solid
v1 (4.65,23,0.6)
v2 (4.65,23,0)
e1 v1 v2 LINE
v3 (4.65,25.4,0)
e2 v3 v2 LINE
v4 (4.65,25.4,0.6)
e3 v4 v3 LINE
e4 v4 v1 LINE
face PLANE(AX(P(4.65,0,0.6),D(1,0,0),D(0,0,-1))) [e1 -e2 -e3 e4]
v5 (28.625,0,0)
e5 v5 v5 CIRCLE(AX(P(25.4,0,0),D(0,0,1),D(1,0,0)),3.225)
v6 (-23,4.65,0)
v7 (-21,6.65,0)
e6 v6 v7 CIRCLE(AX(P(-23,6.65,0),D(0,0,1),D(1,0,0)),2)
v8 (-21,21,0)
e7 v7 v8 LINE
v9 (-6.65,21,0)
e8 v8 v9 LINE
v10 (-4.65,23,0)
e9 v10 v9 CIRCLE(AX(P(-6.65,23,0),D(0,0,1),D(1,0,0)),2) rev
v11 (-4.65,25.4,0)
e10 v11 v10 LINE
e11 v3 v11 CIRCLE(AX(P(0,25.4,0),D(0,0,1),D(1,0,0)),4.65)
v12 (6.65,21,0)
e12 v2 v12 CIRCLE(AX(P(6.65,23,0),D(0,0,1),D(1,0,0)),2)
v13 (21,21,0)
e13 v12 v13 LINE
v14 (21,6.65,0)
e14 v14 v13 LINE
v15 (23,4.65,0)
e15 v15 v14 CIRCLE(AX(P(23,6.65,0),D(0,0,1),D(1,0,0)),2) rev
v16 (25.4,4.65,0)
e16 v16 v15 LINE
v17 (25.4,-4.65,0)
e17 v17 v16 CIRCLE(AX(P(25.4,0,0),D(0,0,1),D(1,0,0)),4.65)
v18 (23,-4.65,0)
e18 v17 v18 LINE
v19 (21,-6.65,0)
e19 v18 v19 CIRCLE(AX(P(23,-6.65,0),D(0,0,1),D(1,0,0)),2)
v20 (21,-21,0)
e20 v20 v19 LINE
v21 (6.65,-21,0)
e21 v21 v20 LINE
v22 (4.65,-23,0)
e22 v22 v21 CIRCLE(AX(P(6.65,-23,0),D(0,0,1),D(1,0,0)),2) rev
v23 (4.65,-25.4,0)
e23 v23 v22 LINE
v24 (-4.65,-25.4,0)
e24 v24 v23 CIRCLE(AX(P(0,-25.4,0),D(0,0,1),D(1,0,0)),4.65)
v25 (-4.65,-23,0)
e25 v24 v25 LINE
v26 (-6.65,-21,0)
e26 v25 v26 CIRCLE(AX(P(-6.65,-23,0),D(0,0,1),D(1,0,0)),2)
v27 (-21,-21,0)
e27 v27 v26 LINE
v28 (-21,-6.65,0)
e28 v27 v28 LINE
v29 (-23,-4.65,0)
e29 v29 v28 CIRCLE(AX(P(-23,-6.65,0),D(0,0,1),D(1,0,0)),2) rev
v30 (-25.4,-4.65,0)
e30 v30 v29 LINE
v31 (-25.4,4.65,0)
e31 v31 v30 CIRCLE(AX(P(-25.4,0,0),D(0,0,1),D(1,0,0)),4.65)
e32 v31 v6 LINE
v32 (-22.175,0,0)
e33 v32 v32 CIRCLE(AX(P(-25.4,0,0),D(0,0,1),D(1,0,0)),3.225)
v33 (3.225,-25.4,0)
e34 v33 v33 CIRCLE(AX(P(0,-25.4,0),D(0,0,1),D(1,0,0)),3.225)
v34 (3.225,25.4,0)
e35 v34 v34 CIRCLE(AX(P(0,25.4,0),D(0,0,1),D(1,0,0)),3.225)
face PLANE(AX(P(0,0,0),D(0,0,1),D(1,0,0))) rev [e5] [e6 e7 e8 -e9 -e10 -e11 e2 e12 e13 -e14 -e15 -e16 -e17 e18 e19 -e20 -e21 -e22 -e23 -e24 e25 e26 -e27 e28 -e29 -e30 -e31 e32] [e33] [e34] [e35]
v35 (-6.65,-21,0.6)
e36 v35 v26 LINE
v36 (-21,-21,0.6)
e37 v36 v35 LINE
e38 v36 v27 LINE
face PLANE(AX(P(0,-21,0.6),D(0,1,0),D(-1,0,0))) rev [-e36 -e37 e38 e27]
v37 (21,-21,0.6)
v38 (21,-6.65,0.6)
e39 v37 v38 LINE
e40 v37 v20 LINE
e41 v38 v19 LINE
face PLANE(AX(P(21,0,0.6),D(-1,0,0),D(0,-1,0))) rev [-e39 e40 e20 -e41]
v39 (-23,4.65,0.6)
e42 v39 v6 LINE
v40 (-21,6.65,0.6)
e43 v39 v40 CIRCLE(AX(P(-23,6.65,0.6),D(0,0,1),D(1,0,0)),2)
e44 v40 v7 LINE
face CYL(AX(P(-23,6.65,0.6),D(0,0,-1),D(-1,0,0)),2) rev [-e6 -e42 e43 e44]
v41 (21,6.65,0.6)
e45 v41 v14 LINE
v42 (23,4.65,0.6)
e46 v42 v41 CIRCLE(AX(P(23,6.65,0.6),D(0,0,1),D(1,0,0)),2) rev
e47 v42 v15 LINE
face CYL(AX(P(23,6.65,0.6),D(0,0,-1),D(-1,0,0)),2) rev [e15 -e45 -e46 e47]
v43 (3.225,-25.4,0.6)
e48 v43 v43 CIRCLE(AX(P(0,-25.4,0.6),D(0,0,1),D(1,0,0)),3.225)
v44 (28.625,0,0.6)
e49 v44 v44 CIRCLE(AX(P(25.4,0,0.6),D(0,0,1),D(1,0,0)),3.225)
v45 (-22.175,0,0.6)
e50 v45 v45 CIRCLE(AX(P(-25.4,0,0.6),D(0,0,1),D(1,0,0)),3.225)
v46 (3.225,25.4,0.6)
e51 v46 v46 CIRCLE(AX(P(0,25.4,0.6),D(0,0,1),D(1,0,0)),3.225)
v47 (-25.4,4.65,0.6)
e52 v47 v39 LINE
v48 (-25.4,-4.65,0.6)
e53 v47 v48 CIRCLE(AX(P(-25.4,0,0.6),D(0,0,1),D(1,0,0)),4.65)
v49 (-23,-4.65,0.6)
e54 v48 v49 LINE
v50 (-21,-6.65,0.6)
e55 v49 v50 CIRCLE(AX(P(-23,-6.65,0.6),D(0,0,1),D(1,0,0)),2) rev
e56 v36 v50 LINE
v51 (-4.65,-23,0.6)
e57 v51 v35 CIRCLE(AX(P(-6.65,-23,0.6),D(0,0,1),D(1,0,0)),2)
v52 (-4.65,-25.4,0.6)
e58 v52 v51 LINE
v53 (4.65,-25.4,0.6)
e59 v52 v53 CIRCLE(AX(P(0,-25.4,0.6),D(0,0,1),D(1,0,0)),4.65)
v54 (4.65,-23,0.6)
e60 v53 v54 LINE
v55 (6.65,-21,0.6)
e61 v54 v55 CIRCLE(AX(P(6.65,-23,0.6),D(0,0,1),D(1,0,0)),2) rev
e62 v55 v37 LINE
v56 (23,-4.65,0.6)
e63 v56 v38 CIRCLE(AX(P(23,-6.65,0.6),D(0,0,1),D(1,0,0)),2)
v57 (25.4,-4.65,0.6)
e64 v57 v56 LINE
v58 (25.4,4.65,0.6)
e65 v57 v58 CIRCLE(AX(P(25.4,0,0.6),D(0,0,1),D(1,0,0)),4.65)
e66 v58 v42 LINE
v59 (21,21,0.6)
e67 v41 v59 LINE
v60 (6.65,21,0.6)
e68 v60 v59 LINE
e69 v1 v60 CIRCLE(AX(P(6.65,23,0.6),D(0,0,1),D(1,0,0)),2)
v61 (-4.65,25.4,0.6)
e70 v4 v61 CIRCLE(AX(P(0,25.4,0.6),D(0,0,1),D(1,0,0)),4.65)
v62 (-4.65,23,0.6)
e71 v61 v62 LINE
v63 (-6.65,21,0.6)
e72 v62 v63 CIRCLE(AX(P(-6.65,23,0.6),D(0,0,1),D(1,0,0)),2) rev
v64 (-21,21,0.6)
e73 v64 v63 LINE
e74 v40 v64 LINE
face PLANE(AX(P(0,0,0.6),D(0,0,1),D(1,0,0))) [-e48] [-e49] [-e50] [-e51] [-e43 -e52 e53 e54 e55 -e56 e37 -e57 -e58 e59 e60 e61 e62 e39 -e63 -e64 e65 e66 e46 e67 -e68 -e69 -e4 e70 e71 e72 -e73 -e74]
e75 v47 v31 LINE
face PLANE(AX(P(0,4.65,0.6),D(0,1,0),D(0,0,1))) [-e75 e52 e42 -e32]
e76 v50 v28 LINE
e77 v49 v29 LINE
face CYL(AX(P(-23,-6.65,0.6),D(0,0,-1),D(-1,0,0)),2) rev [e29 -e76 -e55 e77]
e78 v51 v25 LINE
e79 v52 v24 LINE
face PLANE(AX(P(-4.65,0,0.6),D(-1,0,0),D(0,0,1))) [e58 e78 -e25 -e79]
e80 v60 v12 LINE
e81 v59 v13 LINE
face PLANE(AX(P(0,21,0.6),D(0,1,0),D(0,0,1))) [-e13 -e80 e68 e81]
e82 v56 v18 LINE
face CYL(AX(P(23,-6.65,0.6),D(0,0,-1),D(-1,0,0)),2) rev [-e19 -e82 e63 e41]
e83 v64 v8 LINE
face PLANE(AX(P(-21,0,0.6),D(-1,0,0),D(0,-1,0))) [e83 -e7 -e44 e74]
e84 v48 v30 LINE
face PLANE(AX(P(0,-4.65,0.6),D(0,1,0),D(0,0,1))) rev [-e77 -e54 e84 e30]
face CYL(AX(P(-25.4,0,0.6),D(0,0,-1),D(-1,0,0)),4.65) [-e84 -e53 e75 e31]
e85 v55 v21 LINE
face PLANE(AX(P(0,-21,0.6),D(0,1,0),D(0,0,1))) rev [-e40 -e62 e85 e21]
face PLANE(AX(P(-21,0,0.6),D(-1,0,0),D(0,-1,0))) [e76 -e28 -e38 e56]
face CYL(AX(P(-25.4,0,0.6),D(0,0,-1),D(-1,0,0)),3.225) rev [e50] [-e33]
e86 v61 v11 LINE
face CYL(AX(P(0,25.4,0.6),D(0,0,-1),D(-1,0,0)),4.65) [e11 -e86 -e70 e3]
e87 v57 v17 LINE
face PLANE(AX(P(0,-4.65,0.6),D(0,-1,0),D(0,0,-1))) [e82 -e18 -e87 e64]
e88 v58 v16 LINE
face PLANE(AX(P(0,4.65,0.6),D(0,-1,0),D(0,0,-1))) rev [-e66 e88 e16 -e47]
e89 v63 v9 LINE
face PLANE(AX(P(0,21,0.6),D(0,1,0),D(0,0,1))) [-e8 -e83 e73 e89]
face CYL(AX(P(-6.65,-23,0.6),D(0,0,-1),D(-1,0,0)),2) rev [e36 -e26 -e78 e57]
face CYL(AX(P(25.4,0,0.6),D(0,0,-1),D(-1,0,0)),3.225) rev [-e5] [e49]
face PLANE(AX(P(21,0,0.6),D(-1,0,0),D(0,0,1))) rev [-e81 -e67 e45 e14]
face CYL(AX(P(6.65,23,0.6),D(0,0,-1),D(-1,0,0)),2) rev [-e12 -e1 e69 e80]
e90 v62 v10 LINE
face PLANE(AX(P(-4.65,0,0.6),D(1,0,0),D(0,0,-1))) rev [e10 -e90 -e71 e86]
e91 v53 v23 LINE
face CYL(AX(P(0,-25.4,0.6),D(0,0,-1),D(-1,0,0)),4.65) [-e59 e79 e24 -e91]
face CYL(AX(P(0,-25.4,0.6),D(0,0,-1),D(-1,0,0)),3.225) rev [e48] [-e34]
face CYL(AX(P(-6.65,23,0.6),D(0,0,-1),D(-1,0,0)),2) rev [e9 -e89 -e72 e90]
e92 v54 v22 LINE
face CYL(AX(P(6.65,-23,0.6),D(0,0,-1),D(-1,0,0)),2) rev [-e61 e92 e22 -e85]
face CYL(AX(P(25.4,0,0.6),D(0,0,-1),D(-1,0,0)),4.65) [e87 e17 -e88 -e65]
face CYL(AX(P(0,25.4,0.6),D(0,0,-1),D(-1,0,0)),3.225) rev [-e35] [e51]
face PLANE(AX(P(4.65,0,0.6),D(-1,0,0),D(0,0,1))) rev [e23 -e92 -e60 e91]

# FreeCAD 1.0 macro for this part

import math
import FreeCAD as App
import Part
import Sketcher

doc = App.newDocument("Part")
body = doc.addObject("PartDesign::Body", "Body")

sketch1 = body.newObject("Sketcher::SketchObject", "Sketch")
sketch1.AttachmentSupport = (doc.getObject("XY_Plane"), [""])
sketch1.MapMode = "FlatFace"
sketch1.addGeometry([
    Part.ArcOfCircle(Part.Circle(App.Vector(0, 25.4, 0), App.Vector(0, 0, 1), 4.65), math.radians(0), math.radians(180)),
    Part.LineSegment(App.Vector(-4.65, 25.4, 0), App.Vector(-4.65, 23, 0)),
    Part.ArcOfCircle(Part.Circle(App.Vector(-6.65, 23, 0), App.Vector(0, 0, 1), 2), math.radians(-90), math.radians(0)),
    Part.LineSegment(App.Vector(-6.65, 21, 0), App.Vector(-21, 21, 0)),
    Part.LineSegment(App.Vector(-21, 21, 0), App.Vector(-21, 6.65, 0)),
    Part.ArcOfCircle(Part.Circle(App.Vector(-23, 6.65, 0), App.Vector(0, 0, 1), 2), math.radians(-90), math.radians(0)),
    Part.LineSegment(App.Vector(-23, 4.65, 0), App.Vector(-25.4, 4.65, 0)),
    Part.ArcOfCircle(Part.Circle(App.Vector(-25.4, 0, 0), App.Vector(0, 0, 1), 4.65), math.radians(90), math.radians(270)),
    Part.LineSegment(App.Vector(-25.4, -4.65, 0), App.Vector(-23, -4.65, 0)),
    Part.ArcOfCircle(Part.Circle(App.Vector(-23, -6.65, 0), App.Vector(0, 0, 1), 2), math.radians(0), math.radians(90)),
    Part.LineSegment(App.Vector(-21, -6.65, 0), App.Vector(-21, -21, 0)),
    Part.LineSegment(App.Vector(-21, -21, 0), App.Vector(-6.65, -21, 0)),
    Part.ArcOfCircle(Part.Circle(App.Vector(-6.65, -23, 0), App.Vector(0, 0, 1), 2), math.radians(0), math.radians(90)),
    Part.LineSegment(App.Vector(-4.65, -23, 0), App.Vector(-4.65, -25.4, 0)),
    Part.ArcOfCircle(Part.Circle(App.Vector(0, -25.4, 0), App.Vector(0, 0, 1), 4.65), math.radians(180), math.radians(360)),
    Part.LineSegment(App.Vector(4.65, -25.4, 0), App.Vector(4.65, -23, 0)),
    Part.ArcOfCircle(Part.Circle(App.Vector(6.65, -23, 0), App.Vector(0, 0, 1), 2), math.radians(90), math.radians(180)),
    Part.LineSegment(App.Vector(6.65, -21, 0), App.Vector(21, -21, 0)),
    Part.LineSegment(App.Vector(21, -21, 0), App.Vector(21, -6.65, 0)),
    Part.ArcOfCircle(Part.Circle(App.Vector(23, -6.65, 0), App.Vector(0, 0, 1), 2), math.radians(90), math.radians(180)),
    Part.LineSegment(App.Vector(23, -4.65, 0), App.Vector(25.4, -4.65, 0)),
    Part.ArcOfCircle(Part.Circle(App.Vector(25.4, 0, 0), App.Vector(0, 0, 1), 4.65), math.radians(-90), math.radians(90)),
    Part.LineSegment(App.Vector(25.4, 4.65, 0), App.Vector(23, 4.65, 0)),
    Part.ArcOfCircle(Part.Circle(App.Vector(23, 6.65, 0), App.Vector(0, 0, 1), 2), math.radians(-180), math.radians(-90)),
    Part.LineSegment(App.Vector(21, 6.65, 0), App.Vector(21, 21, 0)),
    Part.LineSegment(App.Vector(21, 21, 0), App.Vector(6.65, 21, 0)),
    Part.ArcOfCircle(Part.Circle(App.Vector(6.65, 23, 0), App.Vector(0, 0, 1), 2), math.radians(-180), math.radians(-90)),
    Part.LineSegment(App.Vector(4.65, 23, 0), App.Vector(4.65, 25.4, 0)),
    Part.Circle(App.Vector(0, -25.4, 0), App.Vector(0, 0, 1), 3.225),
    Part.Circle(App.Vector(-25.4, 0, 0), App.Vector(0, 0, 1), 3.225),
    Part.Circle(App.Vector(25.4, 0, 0), App.Vector(0, 0, 1), 3.225),
    Part.Circle(App.Vector(0, 25.4, 0), App.Vector(0, 0, 1), 3.225),
], False)
sketch1.addConstraint([
    Sketcher.Constraint("Tangent", 0, 2, 1, 1),
    Sketcher.Constraint("Tangent", 1, 2, 2, 2),
    Sketcher.Constraint("Tangent", 2, 1, 3, 1),
    Sketcher.Constraint("Coincident", 3, 2, 4, 1),
    Sketcher.Constraint("Tangent", 4, 2, 5, 2),
    Sketcher.Constraint("Tangent", 5, 1, 6, 1),
    Sketcher.Constraint("Tangent", 6, 2, 7, 1),
    Sketcher.Constraint("Tangent", 7, 2, 8, 1),
    Sketcher.Constraint("Tangent", 8, 2, 9, 2),
    Sketcher.Constraint("Tangent", 9, 1, 10, 1),
    Sketcher.Constraint("Coincident", 10, 2, 11, 1),
    Sketcher.Constraint("Tangent", 11, 2, 12, 2),
    Sketcher.Constraint("Tangent", 12, 1, 13, 1),
    Sketcher.Constraint("Tangent", 13, 2, 14, 1),
    Sketcher.Constraint("Tangent", 14, 2, 15, 1),
    Sketcher.Constraint("Tangent", 15, 2, 16, 2),
    Sketcher.Constraint("Tangent", 16, 1, 17, 1),
    Sketcher.Constraint("Coincident", 17, 2, 18, 1),
    Sketcher.Constraint("Tangent", 18, 2, 19, 2),
    Sketcher.Constraint("Tangent", 19, 1, 20, 1),
    Sketcher.Constraint("Tangent", 20, 2, 21, 1),
    Sketcher.Constraint("Tangent", 21, 2, 22, 1),
    Sketcher.Constraint("Tangent", 22, 2, 23, 2),
    Sketcher.Constraint("Tangent", 23, 1, 24, 1),
    Sketcher.Constraint("Coincident", 24, 2, 25, 1),
    Sketcher.Constraint("Tangent", 25, 2, 26, 2),
    Sketcher.Constraint("Tangent", 26, 1, 27, 1),
    Sketcher.Constraint("Tangent", 27, 2, 0, 1),
    Sketcher.Constraint("Vertical", 1),
    Sketcher.Constraint("Horizontal", 3),
    Sketcher.Constraint("Vertical", 4),
    Sketcher.Constraint("Horizontal", 6),
    Sketcher.Constraint("Horizontal", 8),
    Sketcher.Constraint("Vertical", 10),
    Sketcher.Constraint("Horizontal", 11),
    Sketcher.Constraint("Vertical", 13),
    Sketcher.Constraint("Vertical", 15),
    Sketcher.Constraint("Horizontal", 17),
    Sketcher.Constraint("Vertical", 18),
    Sketcher.Constraint("Horizontal", 20),
    Sketcher.Constraint("Horizontal", 22),
    Sketcher.Constraint("Vertical", 24),
    Sketcher.Constraint("Horizontal", 25),
    Sketcher.Constraint("Vertical", 27),
    Sketcher.Constraint("Coincident", 28, 3, 14, 3),
    Sketcher.Constraint("Coincident", 29, 3, 7, 3),
    Sketcher.Constraint("Coincident", 30, 3, 21, 3),
    Sketcher.Constraint("Coincident", 31, 3, 0, 3),
    Sketcher.Constraint("Equal", 2, 5),
    Sketcher.Constraint("Equal", 0, 7),
    Sketcher.Constraint("Equal", 5, 9),
    Sketcher.Constraint("Equal", 9, 12),
    Sketcher.Constraint("Equal", 7, 14),
    Sketcher.Constraint("Equal", 12, 16),
    Sketcher.Constraint("Equal", 16, 19),
    Sketcher.Constraint("Equal", 14, 21),
    Sketcher.Constraint("Equal", 19, 23),
    Sketcher.Constraint("Equal", 23, 26),
    Sketcher.Constraint("Equal", 28, 29),
    Sketcher.Constraint("Equal", 29, 30),
    Sketcher.Constraint("Equal", 30, 31),
    Sketcher.Constraint("Symmetric", 0, 3, 14, 3, -1, 1),
    Sketcher.Constraint("Symmetric", 5, 3, 19, 3, -1, 1),
    Sketcher.Constraint("Symmetric", 10, 2, 24, 2, -1, 1),
    Sketcher.Constraint("Symmetric", 12, 3, 16, 3, -2),
    Sketcher.Constraint("Symmetric", 9, 3, 19, 3, -2),
    Sketcher.Constraint("Horizontal", 2, 3, 26, 3),
    Sketcher.Constraint("Equal", 8, 20),
    Sketcher.Constraint("Equal", 22, 1),
    Sketcher.Constraint("Equal", 25, 4),
    Sketcher.Constraint("Radius", 2, 2.0),
    Sketcher.Constraint("Diameter", 28, 6.45),
    Sketcher.Constraint("Radius", 0, 4.65),
    Sketcher.Constraint("DistanceX", 6, 2, 6, 1, 2.4),
    Sketcher.Constraint("DistanceY", -1, 1, 2, 3, 23.0),
])
pad1 = body.newObject("PartDesign::Pad", "Pad")
pad1.Profile = sketch1
pad1.Length = 0.6

doc.recompute()
